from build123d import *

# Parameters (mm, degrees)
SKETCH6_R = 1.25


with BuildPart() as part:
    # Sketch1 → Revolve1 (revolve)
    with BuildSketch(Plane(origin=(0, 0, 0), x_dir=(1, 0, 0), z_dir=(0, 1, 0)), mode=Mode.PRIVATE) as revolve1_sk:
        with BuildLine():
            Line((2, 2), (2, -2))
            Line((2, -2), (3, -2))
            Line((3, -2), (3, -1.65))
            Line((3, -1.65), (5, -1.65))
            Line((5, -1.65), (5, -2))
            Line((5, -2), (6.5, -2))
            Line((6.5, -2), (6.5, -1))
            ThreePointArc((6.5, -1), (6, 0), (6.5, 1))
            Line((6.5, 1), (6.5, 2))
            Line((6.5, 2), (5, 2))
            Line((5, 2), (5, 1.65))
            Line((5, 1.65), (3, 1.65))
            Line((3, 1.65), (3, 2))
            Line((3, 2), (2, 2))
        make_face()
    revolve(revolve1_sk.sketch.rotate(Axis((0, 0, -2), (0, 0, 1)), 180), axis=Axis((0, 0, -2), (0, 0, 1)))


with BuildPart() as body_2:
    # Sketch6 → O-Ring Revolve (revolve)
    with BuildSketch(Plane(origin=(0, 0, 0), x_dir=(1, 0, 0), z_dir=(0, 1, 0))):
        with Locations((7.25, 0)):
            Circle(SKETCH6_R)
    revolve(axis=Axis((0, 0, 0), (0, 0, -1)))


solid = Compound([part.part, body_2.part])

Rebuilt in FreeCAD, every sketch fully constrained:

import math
import FreeCAD as App
import Part
import Sketcher

V = App.Vector

doc = App.newDocument("Part")
body = doc.addObject("PartDesign::Body", "Body")

# Sketch on XZ plane
sketch1 = body.newObject("Sketcher::SketchObject", "Sketch")
sketch1.AttachmentSupport = (doc.getObject("XZ_Plane"), [""])
sketch1.MapMode = "FlatFace"
sketch1.addGeometry(Part.LineSegment(V(2, -2, 0), V(2, 2, 0)), False)
sketch1.addGeometry(Part.LineSegment(V(2, 2, 0), V(3, 2, 0)), False)
sketch1.addGeometry(Part.LineSegment(V(3, 2, 0), V(3, 1.65, 0)), False)
sketch1.addGeometry(Part.LineSegment(V(3, 1.65, 0), V(5, 1.65, 0)), False)
sketch1.addGeometry(Part.LineSegment(V(5, 1.65, 0), V(5, 2, 0)), False)
sketch1.addGeometry(Part.LineSegment(V(5, 2, 0), V(6.5, 2, 0)), False)
sketch1.addGeometry(Part.LineSegment(V(6.5, 2, 0), V(6.5, 1, 0)), False)
sketch1.addGeometry(Part.ArcOfCircle(Part.Circle(V(7.25, 0, 0), V(0, 0, 1), 1.25), math.radians(127), math.radians(233)), False)
sketch1.addGeometry(Part.LineSegment(V(6.5, -1, 0), V(6.5, -2, 0)), False)
sketch1.addGeometry(Part.LineSegment(V(6.5, -2, 0), V(5, -2, 0)), False)
sketch1.addGeometry(Part.LineSegment(V(5, -2, 0), V(5, -1.65, 0)), False)
sketch1.addGeometry(Part.LineSegment(V(5, -1.65, 0), V(3, -1.65, 0)), False)
sketch1.addGeometry(Part.LineSegment(V(3, -1.65, 0), V(3, -2, 0)), False)
sketch1.addGeometry(Part.LineSegment(V(3, -2, 0), V(2, -2, 0)), False)
sketch1.addConstraint(Sketcher.Constraint("Coincident", 0, 2, 1, 1))
sketch1.addConstraint(Sketcher.Constraint("Coincident", 1, 2, 2, 1))
sketch1.addConstraint(Sketcher.Constraint("Coincident", 2, 2, 3, 1))
sketch1.addConstraint(Sketcher.Constraint("Coincident", 3, 2, 4, 1))
sketch1.addConstraint(Sketcher.Constraint("Coincident", 4, 2, 5, 1))
sketch1.addConstraint(Sketcher.Constraint("Coincident", 5, 2, 6, 1))
sketch1.addConstraint(Sketcher.Constraint("Coincident", 6, 2, 7, 1))
sketch1.addConstraint(Sketcher.Constraint("Coincident", 7, 2, 8, 1))
sketch1.addConstraint(Sketcher.Constraint("Coincident", 8, 2, 9, 1))
sketch1.addConstraint(Sketcher.Constraint("Coincident", 9, 2, 10, 1))
sketch1.addConstraint(Sketcher.Constraint("Coincident", 10, 2, 11, 1))
sketch1.addConstraint(Sketcher.Constraint("Coincident", 11, 2, 12, 1))
sketch1.addConstraint(Sketcher.Constraint("Coincident", 12, 2, 13, 1))
sketch1.addConstraint(Sketcher.Constraint("Coincident", 13, 2, 0, 1))
sketch1.addConstraint(Sketcher.Constraint("Vertical", 0))
sketch1.addConstraint(Sketcher.Constraint("Horizontal", 1))
sketch1.addConstraint(Sketcher.Constraint("Vertical", 2))
sketch1.addConstraint(Sketcher.Constraint("Horizontal", 3))
sketch1.addConstraint(Sketcher.Constraint("Vertical", 4))
sketch1.addConstraint(Sketcher.Constraint("Horizontal", 5))
sketch1.addConstraint(Sketcher.Constraint("Vertical", 6))
sketch1.addConstraint(Sketcher.Constraint("Vertical", 8))
sketch1.addConstraint(Sketcher.Constraint("Horizontal", 9))
sketch1.addConstraint(Sketcher.Constraint("Vertical", 10))
sketch1.addConstraint(Sketcher.Constraint("Horizontal", 11))
sketch1.addConstraint(Sketcher.Constraint("Vertical", 12))
sketch1.addConstraint(Sketcher.Constraint("Horizontal", 13))
sketch1.addConstraint(Sketcher.Constraint("Symmetric", 6, 2, 7, 2, -1))
sketch1.addConstraint(Sketcher.Constraint("Symmetric", 4, 2, 9, 2, -1))
sketch1.addConstraint(Sketcher.Constraint("Symmetric", 2, 2, 11, 2, -1))
sketch1.addConstraint(Sketcher.Constraint("Horizontal", 1, 2, 4, 2))
sketch1.addConstraint(Sketcher.Constraint("Horizontal", 9, 2, 12, 2))
sketch1.addConstraint(Sketcher.Constraint("Equal", 13, 6))
sketch1.addConstraint(Sketcher.Constraint("DistanceX", 1, 1, 1, 2, 1.0))
sketch1.addConstraint(Sketcher.Constraint("DistanceX", 3, 1, 3, 2, 2.0))
sketch1.addConstraint(Sketcher.Constraint("DistanceY", 0, 1, 0, 2, 4.0))
sketch1.addConstraint(Sketcher.Constraint("Radius", 7, 1.25))
sketch1.addConstraint(Sketcher.Constraint("DistanceX", 5, 1, 5, 2, 1.5))
sketch1.addConstraint(Sketcher.Constraint("DistanceX", -1, 1, 0, 2, 2.0))
sketch1.addConstraint(Sketcher.Constraint("DistanceY", 2, 2, 2, 1, 0.35))
revolution = body.newObject("PartDesign::Revolution", "Revolution")
revolution.Profile = sketch1
revolution.ReferenceAxis = (sketch1, ["V_Axis"])
revolution.Angle = 360
body2 = doc.addObject("PartDesign::Body", "Body001")

# Sketch on XZ plane
sketch2 = body2.newObject("Sketcher::SketchObject", "Sketch001")
sketch2.AttachmentSupport = (doc.getObject("XZ_Plane001"), [""])
sketch2.MapMode = "FlatFace"
sketch2.addGeometry(Part.Circle(V(7.2, 0, 0), V(0, 0, 1), 1.2), False)
sketch2.addConstraint(Sketcher.Constraint("PointOnObject", 0, 3, -1))
sketch2.addConstraint(Sketcher.Constraint("Diameter", 0, 2.5))
sketch2.addConstraint(Sketcher.Constraint("DistanceX", -1, 1, 0, 3, 7.25))
revolution2 = body2.newObject("PartDesign::Revolution", "Revolution001")
revolution2.Profile = sketch2
revolution2.ReferenceAxis = (sketch2, ["V_Axis"])
revolution2.Angle = 360

doc.recompute()
